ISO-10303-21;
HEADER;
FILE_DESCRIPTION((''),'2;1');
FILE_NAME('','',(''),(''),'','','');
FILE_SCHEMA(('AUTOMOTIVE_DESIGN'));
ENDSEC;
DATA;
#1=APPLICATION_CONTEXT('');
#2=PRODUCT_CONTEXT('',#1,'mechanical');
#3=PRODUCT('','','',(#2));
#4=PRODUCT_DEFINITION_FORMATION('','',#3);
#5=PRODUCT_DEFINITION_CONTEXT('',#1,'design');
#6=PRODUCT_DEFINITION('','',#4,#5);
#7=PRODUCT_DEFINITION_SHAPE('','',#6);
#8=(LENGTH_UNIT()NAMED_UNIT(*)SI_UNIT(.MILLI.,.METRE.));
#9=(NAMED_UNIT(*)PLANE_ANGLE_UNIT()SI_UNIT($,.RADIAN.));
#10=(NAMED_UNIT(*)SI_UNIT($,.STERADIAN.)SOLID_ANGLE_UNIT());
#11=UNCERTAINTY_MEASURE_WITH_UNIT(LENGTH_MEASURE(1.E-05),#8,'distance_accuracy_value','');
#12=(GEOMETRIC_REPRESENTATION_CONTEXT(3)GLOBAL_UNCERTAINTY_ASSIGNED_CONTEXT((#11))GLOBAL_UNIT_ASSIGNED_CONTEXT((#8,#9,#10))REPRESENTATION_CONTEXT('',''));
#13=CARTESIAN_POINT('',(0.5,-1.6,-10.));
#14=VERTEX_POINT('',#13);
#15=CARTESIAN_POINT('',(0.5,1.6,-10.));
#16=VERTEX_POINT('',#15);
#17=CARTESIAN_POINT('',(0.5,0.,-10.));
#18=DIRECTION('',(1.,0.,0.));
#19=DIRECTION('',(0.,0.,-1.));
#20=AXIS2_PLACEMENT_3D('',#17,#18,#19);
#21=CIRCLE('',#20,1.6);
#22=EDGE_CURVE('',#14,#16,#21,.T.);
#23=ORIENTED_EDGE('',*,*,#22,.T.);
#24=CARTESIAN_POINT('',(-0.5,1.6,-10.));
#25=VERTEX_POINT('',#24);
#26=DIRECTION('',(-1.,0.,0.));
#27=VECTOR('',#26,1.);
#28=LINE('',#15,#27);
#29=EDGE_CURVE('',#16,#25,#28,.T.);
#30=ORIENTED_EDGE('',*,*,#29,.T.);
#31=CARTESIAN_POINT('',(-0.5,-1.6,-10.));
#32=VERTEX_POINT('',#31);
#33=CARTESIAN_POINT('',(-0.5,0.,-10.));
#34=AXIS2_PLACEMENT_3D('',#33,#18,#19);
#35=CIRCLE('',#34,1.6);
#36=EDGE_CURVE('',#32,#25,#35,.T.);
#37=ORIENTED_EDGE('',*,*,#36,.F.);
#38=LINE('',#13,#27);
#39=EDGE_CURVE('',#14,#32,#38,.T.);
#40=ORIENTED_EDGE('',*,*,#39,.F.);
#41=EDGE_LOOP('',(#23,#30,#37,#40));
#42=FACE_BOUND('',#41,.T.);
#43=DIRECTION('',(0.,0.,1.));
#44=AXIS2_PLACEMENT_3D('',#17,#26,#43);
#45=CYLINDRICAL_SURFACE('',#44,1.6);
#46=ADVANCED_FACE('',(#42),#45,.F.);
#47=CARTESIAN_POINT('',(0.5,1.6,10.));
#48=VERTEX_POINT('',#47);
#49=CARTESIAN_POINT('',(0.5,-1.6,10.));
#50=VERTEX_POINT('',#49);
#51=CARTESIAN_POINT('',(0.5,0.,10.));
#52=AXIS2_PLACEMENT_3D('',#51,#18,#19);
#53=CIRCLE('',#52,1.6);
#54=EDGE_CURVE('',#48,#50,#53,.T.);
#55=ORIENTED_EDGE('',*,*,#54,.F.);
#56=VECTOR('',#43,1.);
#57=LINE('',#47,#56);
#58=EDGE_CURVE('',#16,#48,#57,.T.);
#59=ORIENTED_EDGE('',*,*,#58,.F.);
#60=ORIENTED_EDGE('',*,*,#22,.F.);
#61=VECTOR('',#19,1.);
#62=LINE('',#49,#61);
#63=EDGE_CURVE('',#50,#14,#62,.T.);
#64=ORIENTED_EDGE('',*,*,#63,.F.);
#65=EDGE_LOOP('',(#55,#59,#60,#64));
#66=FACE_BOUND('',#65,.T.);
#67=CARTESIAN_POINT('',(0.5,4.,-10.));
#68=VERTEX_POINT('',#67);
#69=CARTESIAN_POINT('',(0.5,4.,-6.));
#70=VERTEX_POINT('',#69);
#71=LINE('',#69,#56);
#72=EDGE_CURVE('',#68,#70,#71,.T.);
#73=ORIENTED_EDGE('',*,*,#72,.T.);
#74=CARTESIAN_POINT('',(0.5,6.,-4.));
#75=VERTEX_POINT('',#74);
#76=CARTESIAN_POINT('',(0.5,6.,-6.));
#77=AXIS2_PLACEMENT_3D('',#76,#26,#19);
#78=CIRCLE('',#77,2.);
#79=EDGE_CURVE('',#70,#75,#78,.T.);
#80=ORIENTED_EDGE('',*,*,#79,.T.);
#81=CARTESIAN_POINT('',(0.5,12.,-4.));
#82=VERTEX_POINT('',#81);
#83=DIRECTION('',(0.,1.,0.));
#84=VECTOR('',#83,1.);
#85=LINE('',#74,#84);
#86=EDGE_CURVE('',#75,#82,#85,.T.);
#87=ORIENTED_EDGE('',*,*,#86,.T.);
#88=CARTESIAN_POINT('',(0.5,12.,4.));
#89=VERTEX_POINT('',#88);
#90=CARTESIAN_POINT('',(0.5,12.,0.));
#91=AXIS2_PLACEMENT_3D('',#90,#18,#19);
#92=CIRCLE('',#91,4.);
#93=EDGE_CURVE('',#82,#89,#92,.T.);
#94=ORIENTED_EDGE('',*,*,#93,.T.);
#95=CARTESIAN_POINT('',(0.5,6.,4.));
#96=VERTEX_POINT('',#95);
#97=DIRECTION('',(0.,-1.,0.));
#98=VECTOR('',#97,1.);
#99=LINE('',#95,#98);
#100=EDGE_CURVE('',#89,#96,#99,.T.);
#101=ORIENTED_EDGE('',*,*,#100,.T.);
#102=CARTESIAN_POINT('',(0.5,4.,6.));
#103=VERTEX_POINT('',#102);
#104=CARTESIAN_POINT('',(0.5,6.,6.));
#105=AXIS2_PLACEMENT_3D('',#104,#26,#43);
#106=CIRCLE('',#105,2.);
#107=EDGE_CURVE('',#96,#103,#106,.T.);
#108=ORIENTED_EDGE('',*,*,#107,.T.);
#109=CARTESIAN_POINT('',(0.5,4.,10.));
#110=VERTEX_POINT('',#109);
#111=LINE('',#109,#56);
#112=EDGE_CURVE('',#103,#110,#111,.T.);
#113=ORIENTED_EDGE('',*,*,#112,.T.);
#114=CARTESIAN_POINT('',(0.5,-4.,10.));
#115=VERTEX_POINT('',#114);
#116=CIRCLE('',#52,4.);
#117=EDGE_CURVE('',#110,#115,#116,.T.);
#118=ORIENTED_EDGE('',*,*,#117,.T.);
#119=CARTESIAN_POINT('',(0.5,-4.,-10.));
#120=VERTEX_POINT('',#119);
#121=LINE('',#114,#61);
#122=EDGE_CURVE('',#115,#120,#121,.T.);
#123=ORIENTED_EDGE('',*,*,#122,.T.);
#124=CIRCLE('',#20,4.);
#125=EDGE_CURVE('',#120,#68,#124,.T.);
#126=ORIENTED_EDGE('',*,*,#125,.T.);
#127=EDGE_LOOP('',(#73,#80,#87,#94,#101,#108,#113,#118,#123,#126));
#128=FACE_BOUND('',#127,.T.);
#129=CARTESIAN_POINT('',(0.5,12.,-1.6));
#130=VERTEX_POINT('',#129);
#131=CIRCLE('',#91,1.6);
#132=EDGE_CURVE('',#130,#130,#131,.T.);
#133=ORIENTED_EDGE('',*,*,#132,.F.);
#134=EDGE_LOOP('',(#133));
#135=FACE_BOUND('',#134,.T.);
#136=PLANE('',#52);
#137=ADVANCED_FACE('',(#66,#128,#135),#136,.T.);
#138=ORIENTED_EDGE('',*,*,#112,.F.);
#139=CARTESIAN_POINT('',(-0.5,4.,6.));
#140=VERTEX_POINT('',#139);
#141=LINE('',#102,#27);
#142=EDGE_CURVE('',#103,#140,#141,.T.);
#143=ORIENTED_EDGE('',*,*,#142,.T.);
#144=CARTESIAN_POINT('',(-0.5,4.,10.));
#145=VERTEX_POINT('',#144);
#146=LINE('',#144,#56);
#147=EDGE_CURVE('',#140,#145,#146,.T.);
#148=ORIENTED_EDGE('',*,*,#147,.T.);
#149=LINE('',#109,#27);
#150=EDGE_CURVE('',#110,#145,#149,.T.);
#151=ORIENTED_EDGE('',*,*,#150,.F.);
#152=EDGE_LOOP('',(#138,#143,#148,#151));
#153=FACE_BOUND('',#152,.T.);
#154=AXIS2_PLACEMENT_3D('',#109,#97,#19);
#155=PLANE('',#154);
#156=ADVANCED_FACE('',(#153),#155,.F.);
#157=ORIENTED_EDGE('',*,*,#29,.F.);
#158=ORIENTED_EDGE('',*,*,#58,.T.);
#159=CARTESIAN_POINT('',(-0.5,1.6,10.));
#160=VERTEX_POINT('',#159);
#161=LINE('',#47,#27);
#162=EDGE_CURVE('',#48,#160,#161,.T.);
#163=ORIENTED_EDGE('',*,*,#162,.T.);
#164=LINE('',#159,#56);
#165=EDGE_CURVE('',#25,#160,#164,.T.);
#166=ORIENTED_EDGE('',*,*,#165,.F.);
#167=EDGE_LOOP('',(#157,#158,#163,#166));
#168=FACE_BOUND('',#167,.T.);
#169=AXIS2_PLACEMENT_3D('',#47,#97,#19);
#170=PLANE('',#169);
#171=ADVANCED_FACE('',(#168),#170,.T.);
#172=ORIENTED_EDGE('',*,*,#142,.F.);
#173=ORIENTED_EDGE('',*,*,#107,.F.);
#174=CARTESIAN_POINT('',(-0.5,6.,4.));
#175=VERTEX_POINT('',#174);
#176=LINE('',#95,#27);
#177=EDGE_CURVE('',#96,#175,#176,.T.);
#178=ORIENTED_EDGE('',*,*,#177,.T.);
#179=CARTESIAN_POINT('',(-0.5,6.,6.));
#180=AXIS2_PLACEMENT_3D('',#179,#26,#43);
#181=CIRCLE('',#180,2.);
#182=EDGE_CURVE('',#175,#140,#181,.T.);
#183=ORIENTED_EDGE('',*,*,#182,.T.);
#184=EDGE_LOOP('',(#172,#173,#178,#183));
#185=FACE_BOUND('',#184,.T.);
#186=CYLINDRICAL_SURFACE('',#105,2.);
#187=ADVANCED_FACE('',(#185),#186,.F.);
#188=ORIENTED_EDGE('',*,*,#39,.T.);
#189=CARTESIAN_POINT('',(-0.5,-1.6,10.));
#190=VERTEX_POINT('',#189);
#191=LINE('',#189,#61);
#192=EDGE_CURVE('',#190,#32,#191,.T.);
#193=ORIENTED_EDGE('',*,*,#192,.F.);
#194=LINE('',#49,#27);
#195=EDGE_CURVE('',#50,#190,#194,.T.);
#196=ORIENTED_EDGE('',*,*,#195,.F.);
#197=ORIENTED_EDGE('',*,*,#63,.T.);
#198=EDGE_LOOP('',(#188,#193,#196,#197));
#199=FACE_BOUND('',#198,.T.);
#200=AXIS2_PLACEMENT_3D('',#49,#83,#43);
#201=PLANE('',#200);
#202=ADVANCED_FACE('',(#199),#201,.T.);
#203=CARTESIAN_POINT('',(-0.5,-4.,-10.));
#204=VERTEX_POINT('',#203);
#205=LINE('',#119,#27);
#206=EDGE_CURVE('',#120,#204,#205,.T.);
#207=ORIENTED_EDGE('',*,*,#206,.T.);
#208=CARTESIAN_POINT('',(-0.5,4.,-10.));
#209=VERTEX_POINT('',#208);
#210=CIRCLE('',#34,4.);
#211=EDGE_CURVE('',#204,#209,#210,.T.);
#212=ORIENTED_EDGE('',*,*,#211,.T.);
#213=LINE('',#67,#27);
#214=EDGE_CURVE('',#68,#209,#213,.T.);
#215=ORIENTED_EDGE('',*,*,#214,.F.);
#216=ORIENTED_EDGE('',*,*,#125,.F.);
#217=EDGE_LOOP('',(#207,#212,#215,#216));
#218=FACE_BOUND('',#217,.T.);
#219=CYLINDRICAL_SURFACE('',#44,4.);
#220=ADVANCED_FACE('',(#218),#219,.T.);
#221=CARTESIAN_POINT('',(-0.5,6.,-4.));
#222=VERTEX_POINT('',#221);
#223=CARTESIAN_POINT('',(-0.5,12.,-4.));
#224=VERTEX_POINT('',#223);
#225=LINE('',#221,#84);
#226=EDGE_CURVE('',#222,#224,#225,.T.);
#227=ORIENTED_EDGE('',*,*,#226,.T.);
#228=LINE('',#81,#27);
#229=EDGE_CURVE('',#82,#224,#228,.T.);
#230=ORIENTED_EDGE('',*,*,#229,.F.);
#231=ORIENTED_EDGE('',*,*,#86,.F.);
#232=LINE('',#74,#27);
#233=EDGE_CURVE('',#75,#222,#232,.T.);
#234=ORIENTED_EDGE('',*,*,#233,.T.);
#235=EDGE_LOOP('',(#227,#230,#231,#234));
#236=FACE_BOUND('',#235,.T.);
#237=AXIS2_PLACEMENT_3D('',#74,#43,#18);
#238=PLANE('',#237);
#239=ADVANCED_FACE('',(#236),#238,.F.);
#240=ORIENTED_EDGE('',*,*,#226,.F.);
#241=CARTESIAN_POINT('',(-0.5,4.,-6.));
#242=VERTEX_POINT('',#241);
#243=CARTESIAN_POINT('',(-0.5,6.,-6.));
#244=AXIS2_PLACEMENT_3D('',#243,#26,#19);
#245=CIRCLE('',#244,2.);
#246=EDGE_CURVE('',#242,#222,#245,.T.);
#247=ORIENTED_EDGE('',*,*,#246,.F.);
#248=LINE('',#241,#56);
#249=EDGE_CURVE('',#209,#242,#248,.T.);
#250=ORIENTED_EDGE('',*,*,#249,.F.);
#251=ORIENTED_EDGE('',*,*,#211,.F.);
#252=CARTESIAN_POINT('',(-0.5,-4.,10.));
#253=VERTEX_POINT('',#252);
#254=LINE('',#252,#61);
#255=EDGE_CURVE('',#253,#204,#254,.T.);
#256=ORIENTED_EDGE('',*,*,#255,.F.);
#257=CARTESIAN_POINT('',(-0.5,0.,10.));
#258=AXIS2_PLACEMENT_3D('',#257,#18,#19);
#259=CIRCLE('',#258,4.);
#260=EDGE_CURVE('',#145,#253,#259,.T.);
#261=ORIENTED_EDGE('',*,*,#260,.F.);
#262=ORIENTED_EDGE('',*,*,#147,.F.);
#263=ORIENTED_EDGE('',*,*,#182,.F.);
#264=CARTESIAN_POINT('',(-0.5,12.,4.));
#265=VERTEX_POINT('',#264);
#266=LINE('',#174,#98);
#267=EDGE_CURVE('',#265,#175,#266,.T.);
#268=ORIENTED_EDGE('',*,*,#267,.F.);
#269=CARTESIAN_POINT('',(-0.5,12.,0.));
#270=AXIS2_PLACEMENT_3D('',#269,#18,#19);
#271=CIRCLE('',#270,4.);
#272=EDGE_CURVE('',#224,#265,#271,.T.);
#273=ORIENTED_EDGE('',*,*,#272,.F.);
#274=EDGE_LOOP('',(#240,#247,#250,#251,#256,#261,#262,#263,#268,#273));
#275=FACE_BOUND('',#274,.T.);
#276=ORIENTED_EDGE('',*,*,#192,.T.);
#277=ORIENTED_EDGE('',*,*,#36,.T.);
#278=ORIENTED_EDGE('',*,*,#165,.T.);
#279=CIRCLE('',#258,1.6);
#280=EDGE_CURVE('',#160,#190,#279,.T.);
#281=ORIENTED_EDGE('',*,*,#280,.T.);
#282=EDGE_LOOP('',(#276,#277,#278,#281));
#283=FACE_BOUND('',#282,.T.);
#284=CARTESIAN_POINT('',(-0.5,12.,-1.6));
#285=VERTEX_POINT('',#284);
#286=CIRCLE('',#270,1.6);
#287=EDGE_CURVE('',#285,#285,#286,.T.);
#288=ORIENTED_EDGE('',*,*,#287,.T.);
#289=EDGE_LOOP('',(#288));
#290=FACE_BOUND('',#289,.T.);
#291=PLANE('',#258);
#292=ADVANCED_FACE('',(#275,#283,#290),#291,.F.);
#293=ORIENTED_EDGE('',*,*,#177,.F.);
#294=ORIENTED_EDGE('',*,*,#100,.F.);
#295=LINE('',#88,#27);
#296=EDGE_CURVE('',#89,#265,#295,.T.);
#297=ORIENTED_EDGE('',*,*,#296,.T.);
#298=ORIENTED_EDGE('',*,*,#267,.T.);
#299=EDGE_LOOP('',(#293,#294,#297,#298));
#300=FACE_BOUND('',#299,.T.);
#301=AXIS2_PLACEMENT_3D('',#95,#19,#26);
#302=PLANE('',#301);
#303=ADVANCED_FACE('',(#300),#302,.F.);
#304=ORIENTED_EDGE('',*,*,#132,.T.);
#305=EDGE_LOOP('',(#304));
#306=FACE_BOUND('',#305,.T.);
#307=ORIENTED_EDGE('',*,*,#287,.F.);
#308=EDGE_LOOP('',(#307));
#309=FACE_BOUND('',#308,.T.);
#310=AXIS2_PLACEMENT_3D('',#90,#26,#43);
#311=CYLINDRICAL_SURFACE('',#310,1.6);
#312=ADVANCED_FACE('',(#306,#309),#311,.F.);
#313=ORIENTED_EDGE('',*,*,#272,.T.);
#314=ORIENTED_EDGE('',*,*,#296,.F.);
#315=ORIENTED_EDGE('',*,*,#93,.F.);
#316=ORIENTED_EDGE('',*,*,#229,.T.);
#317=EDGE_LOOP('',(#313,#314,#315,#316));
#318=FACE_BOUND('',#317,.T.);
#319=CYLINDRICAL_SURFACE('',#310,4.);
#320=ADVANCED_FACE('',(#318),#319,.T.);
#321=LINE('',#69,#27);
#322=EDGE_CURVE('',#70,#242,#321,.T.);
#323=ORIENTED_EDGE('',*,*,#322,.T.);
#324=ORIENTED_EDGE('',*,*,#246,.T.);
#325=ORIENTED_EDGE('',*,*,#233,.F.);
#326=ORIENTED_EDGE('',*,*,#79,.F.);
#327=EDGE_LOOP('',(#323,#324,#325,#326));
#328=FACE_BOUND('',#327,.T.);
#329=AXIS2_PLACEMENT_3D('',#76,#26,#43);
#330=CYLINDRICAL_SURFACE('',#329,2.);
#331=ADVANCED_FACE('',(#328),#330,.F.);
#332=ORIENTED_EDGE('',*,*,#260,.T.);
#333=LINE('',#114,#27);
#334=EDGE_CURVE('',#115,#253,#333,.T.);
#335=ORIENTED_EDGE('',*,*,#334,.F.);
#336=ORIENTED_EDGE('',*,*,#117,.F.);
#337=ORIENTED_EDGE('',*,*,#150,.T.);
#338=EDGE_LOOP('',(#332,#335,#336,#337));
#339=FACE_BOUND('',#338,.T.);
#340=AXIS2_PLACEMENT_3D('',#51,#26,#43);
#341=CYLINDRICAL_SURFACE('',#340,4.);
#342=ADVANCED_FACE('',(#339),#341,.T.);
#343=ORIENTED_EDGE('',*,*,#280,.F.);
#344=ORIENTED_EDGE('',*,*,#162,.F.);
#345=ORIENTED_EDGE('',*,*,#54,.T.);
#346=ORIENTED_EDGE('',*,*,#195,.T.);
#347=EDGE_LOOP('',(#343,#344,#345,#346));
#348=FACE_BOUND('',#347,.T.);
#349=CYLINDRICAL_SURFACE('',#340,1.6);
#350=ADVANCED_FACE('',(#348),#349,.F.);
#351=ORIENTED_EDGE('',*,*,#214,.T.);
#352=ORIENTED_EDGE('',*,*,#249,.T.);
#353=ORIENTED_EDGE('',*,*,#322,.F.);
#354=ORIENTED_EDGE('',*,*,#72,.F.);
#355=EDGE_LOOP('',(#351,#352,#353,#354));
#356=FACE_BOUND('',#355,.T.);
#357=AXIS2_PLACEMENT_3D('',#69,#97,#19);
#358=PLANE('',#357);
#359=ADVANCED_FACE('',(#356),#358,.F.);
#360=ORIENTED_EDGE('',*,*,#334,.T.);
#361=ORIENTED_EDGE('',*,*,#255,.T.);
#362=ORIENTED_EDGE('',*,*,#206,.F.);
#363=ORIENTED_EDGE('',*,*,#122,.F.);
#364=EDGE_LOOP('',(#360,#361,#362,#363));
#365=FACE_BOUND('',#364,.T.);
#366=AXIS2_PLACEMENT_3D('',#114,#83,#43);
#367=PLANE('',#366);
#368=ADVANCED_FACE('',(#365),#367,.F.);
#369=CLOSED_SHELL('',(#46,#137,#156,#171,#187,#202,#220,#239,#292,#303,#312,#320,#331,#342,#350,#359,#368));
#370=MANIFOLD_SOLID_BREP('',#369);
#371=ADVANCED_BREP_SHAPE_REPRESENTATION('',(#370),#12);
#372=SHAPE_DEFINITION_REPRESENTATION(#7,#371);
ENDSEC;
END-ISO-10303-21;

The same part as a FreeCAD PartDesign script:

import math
import FreeCAD as App
import Part
import Sketcher
Q = App.Units.Quantity

doc = App.newDocument("Part")
body = doc.addObject("PartDesign::Body", "Body")

# Sketch on YZ plane
sketch1 = body.newObject("Sketcher::SketchObject", "Sketch")
sketch1.AttachmentSupport = (doc.getObject("YZ_Plane"), [""])
sketch1.MapMode = "FlatFace"
sketch1.addGeometry([
    Part.LineSegment(App.Vector(4, 6, 0), App.Vector(4, 10, 0)),  # 0
    Part.ArcOfCircle(Part.Circle(App.Vector(0, 10, 0), App.Vector(0, 0, 1), 4), math.radians(0), math.radians(180)),  # 1
    Part.LineSegment(App.Vector(-4, 10, 0), App.Vector(-4, -10, 0)),  # 2
    Part.ArcOfCircle(Part.Circle(App.Vector(0, -10, 0), App.Vector(0, 0, 1), 4), math.radians(180), math.radians(360)),  # 3
    Part.LineSegment(App.Vector(4, -10, 0), App.Vector(4, -6, 0)),  # 4
    Part.ArcOfCircle(Part.Circle(App.Vector(6, -6, 0), App.Vector(0, 0, 1), 2), math.radians(90), math.radians(180)),  # 5
    Part.LineSegment(App.Vector(6, -4, 0), App.Vector(12, -4, 0)),  # 6
    Part.ArcOfCircle(Part.Circle(App.Vector(12, 0, 0), App.Vector(0, 0, 1), 4), math.radians(-90), math.radians(90)),  # 7
    Part.LineSegment(App.Vector(12, 4, 0), App.Vector(6, 4, 0)),  # 8
    Part.ArcOfCircle(Part.Circle(App.Vector(6, 6, 0), App.Vector(0, 0, 1), 2), math.radians(-180), math.radians(-90)),  # 9
    Part.LineSegment(App.Vector(1.6, 10, 0), App.Vector(1.6, -10, 0)),  # 10
    Part.ArcOfCircle(Part.Circle(App.Vector(0, -10, 0), App.Vector(0, 0, 1), 1.6), math.radians(180), math.radians(360)),  # 11
    Part.LineSegment(App.Vector(-1.6, -10, 0), App.Vector(-1.6, 10, 0)),  # 12
    Part.ArcOfCircle(Part.Circle(App.Vector(0, 10, 0), App.Vector(0, 0, 1), 1.6), math.radians(0), math.radians(180)),  # 13
    Part.Circle(App.Vector(12, 0, 0), App.Vector(0, 0, 1), 1.6),  # 14
], False)
sketch1.addConstraint([
    Sketcher.Constraint("Tangent", 0, 2, 1, 1),
    Sketcher.Constraint("Tangent", 1, 2, 2, 1),
    Sketcher.Constraint("Tangent", 2, 2, 3, 1),
    Sketcher.Constraint("Tangent", 3, 2, 4, 1),
    Sketcher.Constraint("Tangent", 4, 2, 5, 2),
    Sketcher.Constraint("Tangent", 5, 1, 6, 1),
    Sketcher.Constraint("Tangent", 6, 2, 7, 1),
    Sketcher.Constraint("Tangent", 7, 2, 8, 1),
    Sketcher.Constraint("Tangent", 8, 2, 9, 2),
    Sketcher.Constraint("Tangent", 9, 1, 0, 1),
    Sketcher.Constraint("Tangent", 10, 2, 11, 2),
    Sketcher.Constraint("Tangent", 11, 1, 12, 1),
    Sketcher.Constraint("Tangent", 12, 2, 13, 2),
    Sketcher.Constraint("Tangent", 13, 1, 10, 1),
    Sketcher.Constraint("Vertical", 0),
    Sketcher.Constraint("Vertical", 2),
    Sketcher.Constraint("Vertical", 4),
    Sketcher.Constraint("Horizontal", 6),
    Sketcher.Constraint("Horizontal", 8),
    Sketcher.Constraint("Vertical", 10),
    Sketcher.Constraint("Vertical", 12),
    Sketcher.Constraint("Coincident", 11, 3, 3, 3),
    Sketcher.Constraint("Coincident", 13, 3, 1, 3),
    Sketcher.Constraint("Coincident", 14, 3, 7, 3),
    Sketcher.Constraint("Equal", 3, 7),
    Sketcher.Constraint("Equal", 5, 9),
    Sketcher.Constraint("Equal", 13, 14),
    Sketcher.Constraint("Symmetric", 1, 3, 3, 3, -1, 1),
    Sketcher.Constraint("PointOnObject", 7, 3, -1),
    Sketcher.Constraint("Radius", 1, Q("4 mm")),
    Sketcher.Constraint("Radius", 5, Q("2 mm")),
    Sketcher.Constraint("Diameter", 14, Q("3.2 mm")),
    Sketcher.Constraint("DistanceX", 6, 1, 6, 2, Q("6 mm")),
    Sketcher.Constraint("DistanceY", 0, 1, 0, 2, Q("4 mm")),
])
pad1 = body.newObject("PartDesign::Pad", "Pad")
pad1.Profile = sketch1
pad1.Length = 1
pad1.Midplane = True

doc.recompute()
